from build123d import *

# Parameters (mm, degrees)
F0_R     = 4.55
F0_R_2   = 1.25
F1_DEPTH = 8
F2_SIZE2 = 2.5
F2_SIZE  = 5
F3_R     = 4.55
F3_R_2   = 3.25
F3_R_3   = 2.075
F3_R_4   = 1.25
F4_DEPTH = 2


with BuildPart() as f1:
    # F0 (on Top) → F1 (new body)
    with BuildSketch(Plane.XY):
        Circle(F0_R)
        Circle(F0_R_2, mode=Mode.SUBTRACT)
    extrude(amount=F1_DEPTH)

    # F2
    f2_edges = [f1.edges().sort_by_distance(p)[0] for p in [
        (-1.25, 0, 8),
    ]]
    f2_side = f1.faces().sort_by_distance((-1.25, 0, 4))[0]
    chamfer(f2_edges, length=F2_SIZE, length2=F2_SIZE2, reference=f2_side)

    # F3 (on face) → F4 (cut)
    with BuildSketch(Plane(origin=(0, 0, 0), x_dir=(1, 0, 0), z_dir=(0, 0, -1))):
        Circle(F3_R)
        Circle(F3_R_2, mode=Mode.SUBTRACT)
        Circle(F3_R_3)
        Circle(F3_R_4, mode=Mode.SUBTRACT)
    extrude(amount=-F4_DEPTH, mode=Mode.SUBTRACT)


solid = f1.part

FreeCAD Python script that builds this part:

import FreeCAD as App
import Part
import Sketcher
from FreeCAD import Vector


def edges_at(feature, points):
    """Names of the edges that pass closest to the given points."""
    edges = feature.Shape.Edges
    near = lambda p: min(range(len(edges)), key=lambda i: edges[i].distToShape(Part.Vertex(*p))[0])
    return sorted({f"Edge{near(p) + 1}" for p in points})

doc = App.newDocument("Part")
body = doc.addObject("PartDesign::Body", "Body")

sketch1 = body.newObject("Sketcher::SketchObject", "Sketch")
sketch1.AttachmentSupport = (doc.getObject("XY_Plane"), [""])
sketch1.MapMode = "FlatFace"
sketch1.addGeometry([
    Part.Circle(Vector(0, 0, 0), Vector(0, 0, 1), 4.5),
    Part.Circle(Vector(0, 0, 0), Vector(0, 0, 1), 1.2),
], False)
sketch1.addConstraint([
    Sketcher.Constraint("Coincident", 0, 3, -1, 1),
    Sketcher.Constraint("Coincident", 1, 3, -1, 1),
    Sketcher.Constraint("Diameter", 0, 9.1),
    Sketcher.Constraint("Diameter", 1, 2.5),
])
pad1 = body.newObject("PartDesign::Pad", "Pad")
pad1.Profile = sketch1
pad1.Length = 8
doc.recompute()

chamfer = body.newObject("PartDesign::Chamfer", "Chamfer")
chamfer.Base = (pad1, edges_at(pad1, [(-1.25, 0, 8)]))
chamfer.ChamferType = "Two distances"
chamfer.Size = 5
chamfer.Size2 = 2.5

sketch2 = body.newObject("Sketcher::SketchObject", "Sketch001")
sketch2.AttachmentSupport = (doc.getObject("XY_Plane"), [""])
sketch2.MapMode = "FlatFace"
sketch2.addGeometry([
    Part.Circle(Vector(0, 0, 0), Vector(0, 0, 1), 4.5),
    Part.Circle(Vector(0, 0, 0), Vector(0, 0, 1), 3.2),
    Part.Circle(Vector(0, 0, 0), Vector(0, 0, 1), 2.1),
    Part.Circle(Vector(0, 0, 0), Vector(0, 0, 1), 1.2),
], False)
sketch2.addConstraint([
    Sketcher.Constraint("Coincident", 0, 3, -1, 1),
    Sketcher.Constraint("Coincident", 1, 3, -1, 1),
    Sketcher.Constraint("Coincident", 2, 3, -1, 1),
    Sketcher.Constraint("Coincident", 3, 3, -1, 1),
    Sketcher.Constraint("Diameter", 0, 9.1),
    Sketcher.Constraint("Diameter", 1, 6.5),
    Sketcher.Constraint("Diameter", 3, 2.5),
    Sketcher.Constraint("Diameter", 2, 4.15),
])
pocket1 = body.newObject("PartDesign::Pocket", "Pocket")
pocket1.Profile = sketch2
pocket1.Length = 2
pocket1.Reversed = True

doc.recompute()
